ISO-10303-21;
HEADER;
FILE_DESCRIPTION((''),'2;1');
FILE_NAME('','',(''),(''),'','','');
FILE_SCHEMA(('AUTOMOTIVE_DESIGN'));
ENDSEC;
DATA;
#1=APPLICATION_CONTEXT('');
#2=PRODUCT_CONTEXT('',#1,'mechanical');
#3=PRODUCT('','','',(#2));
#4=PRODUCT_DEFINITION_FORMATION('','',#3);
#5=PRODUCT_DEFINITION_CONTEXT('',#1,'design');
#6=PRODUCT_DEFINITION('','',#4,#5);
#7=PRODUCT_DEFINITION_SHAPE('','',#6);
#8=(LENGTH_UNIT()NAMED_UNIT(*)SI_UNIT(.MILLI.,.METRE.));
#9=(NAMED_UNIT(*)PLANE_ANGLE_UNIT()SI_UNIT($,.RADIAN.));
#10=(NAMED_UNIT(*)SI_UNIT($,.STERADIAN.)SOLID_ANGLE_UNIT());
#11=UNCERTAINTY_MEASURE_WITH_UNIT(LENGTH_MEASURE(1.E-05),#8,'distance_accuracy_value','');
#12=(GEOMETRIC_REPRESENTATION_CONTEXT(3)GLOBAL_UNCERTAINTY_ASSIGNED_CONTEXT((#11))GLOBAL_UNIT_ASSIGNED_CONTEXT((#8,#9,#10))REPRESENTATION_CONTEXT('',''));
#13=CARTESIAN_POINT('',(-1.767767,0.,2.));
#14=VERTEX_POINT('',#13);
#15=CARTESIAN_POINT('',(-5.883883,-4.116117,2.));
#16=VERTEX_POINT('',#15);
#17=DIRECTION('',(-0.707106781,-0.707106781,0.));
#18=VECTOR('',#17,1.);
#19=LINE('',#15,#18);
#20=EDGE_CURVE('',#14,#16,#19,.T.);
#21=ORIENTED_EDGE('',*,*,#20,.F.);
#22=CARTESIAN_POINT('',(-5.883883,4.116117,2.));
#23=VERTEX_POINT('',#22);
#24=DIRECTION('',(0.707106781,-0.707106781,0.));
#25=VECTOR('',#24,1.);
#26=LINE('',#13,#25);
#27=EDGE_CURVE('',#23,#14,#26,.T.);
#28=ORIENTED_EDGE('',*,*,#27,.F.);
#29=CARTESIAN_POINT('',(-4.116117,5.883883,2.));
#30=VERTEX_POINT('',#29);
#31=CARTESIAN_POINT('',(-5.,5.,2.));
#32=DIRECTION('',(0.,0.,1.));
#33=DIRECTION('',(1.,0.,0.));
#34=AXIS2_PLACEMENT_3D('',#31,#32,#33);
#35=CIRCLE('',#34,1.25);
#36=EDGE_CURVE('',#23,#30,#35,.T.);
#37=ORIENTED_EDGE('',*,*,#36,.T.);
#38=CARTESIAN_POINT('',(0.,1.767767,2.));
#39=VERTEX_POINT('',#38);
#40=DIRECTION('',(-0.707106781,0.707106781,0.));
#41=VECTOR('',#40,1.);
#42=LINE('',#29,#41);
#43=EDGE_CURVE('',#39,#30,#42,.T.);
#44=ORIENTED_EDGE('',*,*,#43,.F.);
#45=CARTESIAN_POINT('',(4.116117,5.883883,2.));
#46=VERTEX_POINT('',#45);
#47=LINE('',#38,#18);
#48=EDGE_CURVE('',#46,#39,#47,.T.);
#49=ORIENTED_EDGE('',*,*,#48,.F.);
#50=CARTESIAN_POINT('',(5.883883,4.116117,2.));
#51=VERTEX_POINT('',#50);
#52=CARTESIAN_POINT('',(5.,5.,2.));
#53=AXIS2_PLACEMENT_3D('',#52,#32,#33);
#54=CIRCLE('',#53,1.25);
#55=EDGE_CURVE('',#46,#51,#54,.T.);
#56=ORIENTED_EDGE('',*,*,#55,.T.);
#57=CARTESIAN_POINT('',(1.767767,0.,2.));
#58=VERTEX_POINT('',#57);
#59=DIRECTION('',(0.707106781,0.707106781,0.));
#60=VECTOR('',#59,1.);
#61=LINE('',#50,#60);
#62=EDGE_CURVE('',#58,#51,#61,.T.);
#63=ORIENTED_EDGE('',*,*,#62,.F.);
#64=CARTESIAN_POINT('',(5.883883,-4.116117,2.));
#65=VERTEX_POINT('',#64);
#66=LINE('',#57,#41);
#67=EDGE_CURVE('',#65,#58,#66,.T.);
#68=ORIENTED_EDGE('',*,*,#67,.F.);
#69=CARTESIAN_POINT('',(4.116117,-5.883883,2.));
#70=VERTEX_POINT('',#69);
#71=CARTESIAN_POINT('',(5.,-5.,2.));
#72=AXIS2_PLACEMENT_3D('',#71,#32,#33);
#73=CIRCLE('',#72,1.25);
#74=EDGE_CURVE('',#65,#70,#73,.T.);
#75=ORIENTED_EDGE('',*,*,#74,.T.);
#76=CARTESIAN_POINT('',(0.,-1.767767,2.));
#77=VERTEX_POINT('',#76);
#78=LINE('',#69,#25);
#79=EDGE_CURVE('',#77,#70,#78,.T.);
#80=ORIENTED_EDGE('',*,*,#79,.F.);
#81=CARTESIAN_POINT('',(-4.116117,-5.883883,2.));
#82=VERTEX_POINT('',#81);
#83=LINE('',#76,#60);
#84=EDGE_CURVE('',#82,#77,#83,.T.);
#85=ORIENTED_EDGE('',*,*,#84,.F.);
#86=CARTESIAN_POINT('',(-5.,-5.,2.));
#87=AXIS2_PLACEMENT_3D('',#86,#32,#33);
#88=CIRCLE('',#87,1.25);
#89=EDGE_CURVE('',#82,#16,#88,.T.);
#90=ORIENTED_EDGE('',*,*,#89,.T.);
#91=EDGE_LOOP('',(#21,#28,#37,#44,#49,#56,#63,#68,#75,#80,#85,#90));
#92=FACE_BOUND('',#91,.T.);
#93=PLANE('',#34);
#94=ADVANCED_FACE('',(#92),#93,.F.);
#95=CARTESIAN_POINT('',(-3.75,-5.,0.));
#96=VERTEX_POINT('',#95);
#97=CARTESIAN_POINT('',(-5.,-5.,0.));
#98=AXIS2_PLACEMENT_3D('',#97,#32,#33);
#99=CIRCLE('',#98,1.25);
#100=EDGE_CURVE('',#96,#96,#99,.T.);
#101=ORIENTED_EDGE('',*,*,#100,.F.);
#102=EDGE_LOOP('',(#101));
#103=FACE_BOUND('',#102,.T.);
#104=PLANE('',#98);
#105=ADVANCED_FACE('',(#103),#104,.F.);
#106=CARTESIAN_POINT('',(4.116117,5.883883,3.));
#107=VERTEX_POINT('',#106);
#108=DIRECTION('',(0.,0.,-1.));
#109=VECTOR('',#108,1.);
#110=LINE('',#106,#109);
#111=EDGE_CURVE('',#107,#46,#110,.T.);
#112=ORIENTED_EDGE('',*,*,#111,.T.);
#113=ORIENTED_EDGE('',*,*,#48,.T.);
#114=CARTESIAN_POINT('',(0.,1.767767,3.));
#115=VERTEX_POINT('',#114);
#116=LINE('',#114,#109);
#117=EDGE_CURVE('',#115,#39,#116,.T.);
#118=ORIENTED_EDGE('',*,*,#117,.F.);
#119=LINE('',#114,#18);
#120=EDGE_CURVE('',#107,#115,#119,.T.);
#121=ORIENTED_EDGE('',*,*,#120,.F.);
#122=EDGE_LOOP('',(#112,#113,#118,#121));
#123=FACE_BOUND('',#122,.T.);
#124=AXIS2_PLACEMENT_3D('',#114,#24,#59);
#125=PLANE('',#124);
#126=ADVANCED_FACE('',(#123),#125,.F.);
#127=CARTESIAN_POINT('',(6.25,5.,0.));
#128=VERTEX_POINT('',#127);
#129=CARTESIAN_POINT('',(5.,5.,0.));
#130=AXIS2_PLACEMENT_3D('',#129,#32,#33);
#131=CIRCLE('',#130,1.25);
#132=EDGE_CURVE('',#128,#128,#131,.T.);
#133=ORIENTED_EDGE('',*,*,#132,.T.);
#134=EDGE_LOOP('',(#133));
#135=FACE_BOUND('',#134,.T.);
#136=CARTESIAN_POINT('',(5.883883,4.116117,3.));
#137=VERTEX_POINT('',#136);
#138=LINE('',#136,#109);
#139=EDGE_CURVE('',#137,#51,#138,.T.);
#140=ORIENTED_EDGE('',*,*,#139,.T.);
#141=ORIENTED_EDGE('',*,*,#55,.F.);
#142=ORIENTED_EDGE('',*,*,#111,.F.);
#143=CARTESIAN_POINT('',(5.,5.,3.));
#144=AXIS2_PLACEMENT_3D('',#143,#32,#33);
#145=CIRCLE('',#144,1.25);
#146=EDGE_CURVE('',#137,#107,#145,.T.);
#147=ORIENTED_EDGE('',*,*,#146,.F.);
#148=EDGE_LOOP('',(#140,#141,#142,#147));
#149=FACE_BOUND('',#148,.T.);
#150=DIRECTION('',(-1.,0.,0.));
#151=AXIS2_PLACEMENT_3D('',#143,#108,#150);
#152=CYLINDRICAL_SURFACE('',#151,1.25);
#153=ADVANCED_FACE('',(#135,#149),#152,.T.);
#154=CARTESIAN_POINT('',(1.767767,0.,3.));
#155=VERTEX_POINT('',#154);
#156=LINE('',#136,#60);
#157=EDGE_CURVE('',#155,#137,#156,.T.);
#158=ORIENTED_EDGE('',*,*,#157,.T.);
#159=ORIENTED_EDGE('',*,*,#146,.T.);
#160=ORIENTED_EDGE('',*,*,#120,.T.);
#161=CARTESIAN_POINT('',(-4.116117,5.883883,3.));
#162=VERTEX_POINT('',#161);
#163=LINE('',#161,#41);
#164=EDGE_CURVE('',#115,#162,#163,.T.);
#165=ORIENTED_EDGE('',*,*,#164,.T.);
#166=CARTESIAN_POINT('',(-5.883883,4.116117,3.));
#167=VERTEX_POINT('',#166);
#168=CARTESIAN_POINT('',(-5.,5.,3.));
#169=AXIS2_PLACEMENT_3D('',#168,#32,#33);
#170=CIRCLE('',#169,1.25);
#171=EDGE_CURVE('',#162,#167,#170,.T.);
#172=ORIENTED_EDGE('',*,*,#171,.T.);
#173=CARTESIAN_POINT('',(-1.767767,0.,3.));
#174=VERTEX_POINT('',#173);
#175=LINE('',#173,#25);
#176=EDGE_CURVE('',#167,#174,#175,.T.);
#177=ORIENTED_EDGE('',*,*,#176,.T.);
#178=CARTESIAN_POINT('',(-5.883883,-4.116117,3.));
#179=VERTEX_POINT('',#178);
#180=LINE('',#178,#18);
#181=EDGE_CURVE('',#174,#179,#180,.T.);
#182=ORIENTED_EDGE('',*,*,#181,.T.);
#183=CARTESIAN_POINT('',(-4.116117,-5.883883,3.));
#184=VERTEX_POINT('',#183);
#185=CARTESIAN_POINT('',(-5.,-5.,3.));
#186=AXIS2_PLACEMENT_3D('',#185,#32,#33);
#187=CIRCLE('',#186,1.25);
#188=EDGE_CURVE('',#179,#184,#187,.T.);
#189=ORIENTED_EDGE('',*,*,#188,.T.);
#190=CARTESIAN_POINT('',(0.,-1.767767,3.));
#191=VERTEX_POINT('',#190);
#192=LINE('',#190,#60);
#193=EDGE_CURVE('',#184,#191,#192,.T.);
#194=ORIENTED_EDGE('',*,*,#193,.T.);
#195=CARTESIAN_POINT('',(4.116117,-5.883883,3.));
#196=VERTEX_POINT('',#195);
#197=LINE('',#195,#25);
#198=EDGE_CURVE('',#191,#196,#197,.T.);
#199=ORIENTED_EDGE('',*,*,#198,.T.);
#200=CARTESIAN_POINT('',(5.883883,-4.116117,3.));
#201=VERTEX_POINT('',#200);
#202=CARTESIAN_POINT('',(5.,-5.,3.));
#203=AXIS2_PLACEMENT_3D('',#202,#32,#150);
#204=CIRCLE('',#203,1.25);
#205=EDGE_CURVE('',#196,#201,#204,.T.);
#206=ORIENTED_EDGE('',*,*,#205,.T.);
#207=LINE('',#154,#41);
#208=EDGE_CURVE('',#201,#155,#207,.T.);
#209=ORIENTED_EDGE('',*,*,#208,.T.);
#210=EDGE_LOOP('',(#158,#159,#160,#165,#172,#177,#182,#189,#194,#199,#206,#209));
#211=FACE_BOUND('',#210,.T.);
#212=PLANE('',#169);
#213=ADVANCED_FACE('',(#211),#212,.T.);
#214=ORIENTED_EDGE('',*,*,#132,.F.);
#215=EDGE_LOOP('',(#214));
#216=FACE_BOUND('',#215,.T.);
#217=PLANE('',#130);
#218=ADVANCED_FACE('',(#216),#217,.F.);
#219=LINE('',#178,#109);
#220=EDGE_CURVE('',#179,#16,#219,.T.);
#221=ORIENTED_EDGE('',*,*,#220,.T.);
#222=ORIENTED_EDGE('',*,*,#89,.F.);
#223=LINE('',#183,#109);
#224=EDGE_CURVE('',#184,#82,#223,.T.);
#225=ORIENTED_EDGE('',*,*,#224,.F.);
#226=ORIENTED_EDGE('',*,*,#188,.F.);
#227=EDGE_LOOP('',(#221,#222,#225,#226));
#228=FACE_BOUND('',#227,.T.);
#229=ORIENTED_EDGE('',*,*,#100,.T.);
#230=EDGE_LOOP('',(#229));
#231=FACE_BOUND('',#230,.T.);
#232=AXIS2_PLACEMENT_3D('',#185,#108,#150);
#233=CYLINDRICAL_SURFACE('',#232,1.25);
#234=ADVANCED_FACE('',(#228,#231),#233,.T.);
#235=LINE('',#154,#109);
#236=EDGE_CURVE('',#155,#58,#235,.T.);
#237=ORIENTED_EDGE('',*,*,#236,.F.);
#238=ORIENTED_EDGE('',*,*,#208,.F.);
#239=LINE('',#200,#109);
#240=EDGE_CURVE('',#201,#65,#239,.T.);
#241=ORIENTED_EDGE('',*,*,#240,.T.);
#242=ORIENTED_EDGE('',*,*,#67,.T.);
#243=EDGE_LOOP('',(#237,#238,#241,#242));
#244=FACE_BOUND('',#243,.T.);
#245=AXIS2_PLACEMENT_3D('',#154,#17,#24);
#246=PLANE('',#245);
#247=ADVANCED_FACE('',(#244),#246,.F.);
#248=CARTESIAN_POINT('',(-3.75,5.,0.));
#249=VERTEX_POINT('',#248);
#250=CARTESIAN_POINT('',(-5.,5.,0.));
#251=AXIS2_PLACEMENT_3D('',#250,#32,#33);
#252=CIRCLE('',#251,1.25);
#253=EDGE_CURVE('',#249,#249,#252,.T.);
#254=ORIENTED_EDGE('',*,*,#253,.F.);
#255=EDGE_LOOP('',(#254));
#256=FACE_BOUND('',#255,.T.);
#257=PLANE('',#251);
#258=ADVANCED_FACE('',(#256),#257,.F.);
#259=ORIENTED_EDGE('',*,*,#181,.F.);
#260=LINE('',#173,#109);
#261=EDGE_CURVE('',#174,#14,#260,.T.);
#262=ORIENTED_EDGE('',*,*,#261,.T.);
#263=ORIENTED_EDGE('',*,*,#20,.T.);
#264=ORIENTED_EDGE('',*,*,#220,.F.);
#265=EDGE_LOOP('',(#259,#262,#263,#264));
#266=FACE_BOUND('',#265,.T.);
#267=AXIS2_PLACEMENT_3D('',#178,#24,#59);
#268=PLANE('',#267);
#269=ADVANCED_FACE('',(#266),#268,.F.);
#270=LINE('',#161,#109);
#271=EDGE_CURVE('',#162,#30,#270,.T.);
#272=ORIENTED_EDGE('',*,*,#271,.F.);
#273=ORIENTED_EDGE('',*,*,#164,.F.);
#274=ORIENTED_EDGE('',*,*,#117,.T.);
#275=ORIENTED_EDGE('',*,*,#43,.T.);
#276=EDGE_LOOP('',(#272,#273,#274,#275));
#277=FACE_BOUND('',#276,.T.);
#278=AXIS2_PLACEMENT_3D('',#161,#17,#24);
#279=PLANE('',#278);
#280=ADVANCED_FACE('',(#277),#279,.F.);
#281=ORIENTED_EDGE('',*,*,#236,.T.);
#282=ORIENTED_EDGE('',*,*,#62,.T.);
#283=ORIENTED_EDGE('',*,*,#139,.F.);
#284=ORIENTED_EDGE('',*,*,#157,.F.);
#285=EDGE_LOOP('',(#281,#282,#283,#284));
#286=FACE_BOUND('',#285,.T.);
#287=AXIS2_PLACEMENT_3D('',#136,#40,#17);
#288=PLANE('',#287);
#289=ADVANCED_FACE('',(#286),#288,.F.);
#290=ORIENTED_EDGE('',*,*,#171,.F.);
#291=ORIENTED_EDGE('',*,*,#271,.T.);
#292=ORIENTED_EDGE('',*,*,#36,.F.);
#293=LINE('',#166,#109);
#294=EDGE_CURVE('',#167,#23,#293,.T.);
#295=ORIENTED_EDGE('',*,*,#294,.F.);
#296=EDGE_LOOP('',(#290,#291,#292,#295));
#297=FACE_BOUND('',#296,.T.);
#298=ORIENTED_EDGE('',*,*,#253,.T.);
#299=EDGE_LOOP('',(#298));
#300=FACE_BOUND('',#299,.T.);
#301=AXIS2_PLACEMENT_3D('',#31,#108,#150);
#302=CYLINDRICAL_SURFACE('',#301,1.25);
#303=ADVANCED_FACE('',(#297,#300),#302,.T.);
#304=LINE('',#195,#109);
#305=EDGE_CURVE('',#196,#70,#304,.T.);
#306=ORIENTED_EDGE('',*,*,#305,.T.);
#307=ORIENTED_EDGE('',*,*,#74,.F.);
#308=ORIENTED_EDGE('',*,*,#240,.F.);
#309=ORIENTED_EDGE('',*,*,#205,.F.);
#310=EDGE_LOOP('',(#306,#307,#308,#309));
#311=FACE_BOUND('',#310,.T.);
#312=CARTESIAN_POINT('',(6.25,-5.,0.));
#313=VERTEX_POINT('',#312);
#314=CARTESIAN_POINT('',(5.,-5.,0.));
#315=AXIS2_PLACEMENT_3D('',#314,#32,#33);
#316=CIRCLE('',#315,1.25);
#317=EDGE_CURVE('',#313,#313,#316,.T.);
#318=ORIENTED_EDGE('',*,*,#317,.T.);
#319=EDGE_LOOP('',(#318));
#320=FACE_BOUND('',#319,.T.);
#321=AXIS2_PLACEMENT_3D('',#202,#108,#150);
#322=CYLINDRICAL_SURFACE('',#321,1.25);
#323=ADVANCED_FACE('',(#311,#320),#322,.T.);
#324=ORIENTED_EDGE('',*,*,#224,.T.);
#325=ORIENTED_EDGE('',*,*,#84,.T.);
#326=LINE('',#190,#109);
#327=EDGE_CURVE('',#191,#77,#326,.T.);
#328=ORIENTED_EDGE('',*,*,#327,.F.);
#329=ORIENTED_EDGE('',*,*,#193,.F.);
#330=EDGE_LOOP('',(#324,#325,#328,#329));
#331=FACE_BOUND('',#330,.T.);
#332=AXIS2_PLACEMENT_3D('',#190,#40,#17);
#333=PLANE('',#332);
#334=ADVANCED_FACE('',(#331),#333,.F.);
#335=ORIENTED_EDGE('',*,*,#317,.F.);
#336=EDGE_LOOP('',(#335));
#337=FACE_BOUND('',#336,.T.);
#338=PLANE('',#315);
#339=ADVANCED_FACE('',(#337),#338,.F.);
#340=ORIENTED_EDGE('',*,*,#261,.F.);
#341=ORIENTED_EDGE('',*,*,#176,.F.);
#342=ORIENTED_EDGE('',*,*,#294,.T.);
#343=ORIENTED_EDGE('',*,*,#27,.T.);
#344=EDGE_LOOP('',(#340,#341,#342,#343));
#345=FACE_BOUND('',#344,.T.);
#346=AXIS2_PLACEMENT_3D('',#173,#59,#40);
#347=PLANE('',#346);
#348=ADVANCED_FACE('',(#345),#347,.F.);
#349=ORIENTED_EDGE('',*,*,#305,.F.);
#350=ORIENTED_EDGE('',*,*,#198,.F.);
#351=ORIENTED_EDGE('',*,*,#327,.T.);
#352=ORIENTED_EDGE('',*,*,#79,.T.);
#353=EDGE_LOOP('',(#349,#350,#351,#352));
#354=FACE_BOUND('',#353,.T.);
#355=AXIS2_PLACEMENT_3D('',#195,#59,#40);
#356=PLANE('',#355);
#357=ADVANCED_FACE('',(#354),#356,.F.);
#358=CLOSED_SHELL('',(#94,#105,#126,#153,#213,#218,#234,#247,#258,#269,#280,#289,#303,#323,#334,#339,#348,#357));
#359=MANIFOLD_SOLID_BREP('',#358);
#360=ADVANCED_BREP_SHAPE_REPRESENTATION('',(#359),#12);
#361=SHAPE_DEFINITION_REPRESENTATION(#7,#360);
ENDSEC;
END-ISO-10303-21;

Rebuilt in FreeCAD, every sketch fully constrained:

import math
import FreeCAD as App
import Part
import Sketcher

doc = App.newDocument("Part")
body = doc.addObject("PartDesign::Body", "Body")

# Sketch on XY plane
sketch1 = doc.addObject("Sketcher::SketchObject", "Sketch")
body.addObject(sketch1)
sketch1.AttachmentSupport = (doc.XY_Plane, [""])
sketch1.MapMode = "FlatFace"
sketch1.addGeometry(Part.Circle(App.Vector(-5, 5, 0), App.Vector(0, 0, 1), 1.2), False)
sketch1.addConstraint(Sketcher.Constraint("Diameter", 0, 2.5))
sketch1.addConstraint(Sketcher.Constraint("DistanceX", 0, 3, -1, 1, 5.0))
sketch1.addConstraint(Sketcher.Constraint("DistanceY", -1, 1, 0, 3, 5.0))
pad1 = doc.addObject("PartDesign::Pad", "Pad")
body.addObject(pad1)
pad1.Profile = sketch1
pad1.Length = 2
body2 = doc.addObject("PartDesign::Body", "Body001")

# Sketch on XY plane
sketch2 = doc.addObject("Sketcher::SketchObject", "Sketch001")
body2.addObject(sketch2)
sketch2.AttachmentSupport = (doc.getObject("XY_Plane001"), [""])
sketch2.MapMode = "FlatFace"
sketch2.addGeometry(Part.Circle(App.Vector(5, 5, 0), App.Vector(0, 0, 1), 1.2), False)
sketch2.addConstraint(Sketcher.Constraint("Diameter", 0, 2.5))
sketch2.addConstraint(Sketcher.Constraint("DistanceX", -1, 1, 0, 3, 5.0))
sketch2.addConstraint(Sketcher.Constraint("DistanceY", -1, 1, 0, 3, 5.0))
pad2 = doc.addObject("PartDesign::Pad", "Pad001")
body2.addObject(pad2)
pad2.Profile = sketch2
pad2.Length = 2
body3 = doc.addObject("PartDesign::Body", "Body002")

# Sketch on XY plane
sketch3 = doc.addObject("Sketcher::SketchObject", "Sketch002")
body3.addObject(sketch3)
sketch3.AttachmentSupport = (doc.getObject("XY_Plane002"), [""])
sketch3.MapMode = "FlatFace"
sketch3.addGeometry(Part.Circle(App.Vector(5, -5, 0), App.Vector(0, 0, 1), 1.2), False)
sketch3.addConstraint(Sketcher.Constraint("Diameter", 0, 2.5))
sketch3.addConstraint(Sketcher.Constraint("DistanceX", -1, 1, 0, 3, 5.0))
sketch3.addConstraint(Sketcher.Constraint("DistanceY", 0, 3, -1, 1, 5.0))
pad3 = doc.addObject("PartDesign::Pad", "Pad002")
body3.addObject(pad3)
pad3.Profile = sketch3
pad3.Length = 2
body4 = doc.addObject("PartDesign::Body", "Body003")

# Sketch on XY plane
sketch4 = doc.addObject("Sketcher::SketchObject", "Sketch003")
body4.addObject(sketch4)
sketch4.AttachmentSupport = (doc.getObject("XY_Plane003"), [""])
sketch4.MapMode = "FlatFace"
sketch4.addGeometry(Part.Circle(App.Vector(-5, -5, 0), App.Vector(0, 0, 1), 1.2), False)
sketch4.addConstraint(Sketcher.Constraint("Diameter", 0, 2.5))
sketch4.addConstraint(Sketcher.Constraint("DistanceX", 0, 3, -1, 1, 5.0))
sketch4.addConstraint(Sketcher.Constraint("DistanceY", 0, 3, -1, 1, 5.0))
pad4 = doc.addObject("PartDesign::Pad", "Pad003")
body4.addObject(pad4)
pad4.Profile = sketch4
pad4.Length = 2
body.AllowCompound = True
doc.recompute()

boolean = doc.addObject("PartDesign::Boolean", "Boolean")
body.addObject(boolean)
boolean.Type = "Fuse"
boolean.addObjects([body2])
doc.recompute()

boolean2 = doc.addObject("PartDesign::Boolean", "Boolean001")
body.addObject(boolean2)
boolean2.Type = "Fuse"
boolean2.addObjects([body3])
doc.recompute()

boolean3 = doc.addObject("PartDesign::Boolean", "Boolean002")
body.addObject(boolean3)
boolean3.Type = "Fuse"
boolean3.addObjects([body4])

# Sketch on XY plane
sketch5 = doc.addObject("Sketcher::SketchObject", "Sketch004")
body.addObject(sketch5)
sketch5.AttachmentSupport = (doc.XY_Plane, [""])
sketch5.MapMode = "FlatFace"
sketch5.AttachmentOffset = App.Placement(App.Vector(0, 0, 2), App.Rotation())
sketch5.addGeometry(Part.LineSegment(App.Vector(-1.8, 0, 0), App.Vector(-5.9, -4.1, 0)), False)
sketch5.addGeometry(Part.ArcOfCircle(Part.Circle(App.Vector(-5, -5, 0), App.Vector(0, 0, 1), 1.2), math.radians(135), math.radians(315)), False)
sketch5.addGeometry(Part.LineSegment(App.Vector(-4.1, -5.9, 0), App.Vector(0, -1.8, 0)), False)
sketch5.addGeometry(Part.LineSegment(App.Vector(0, -1.8, 0), App.Vector(4.1, -5.9, 0)), False)
sketch5.addGeometry(Part.ArcOfCircle(Part.Circle(App.Vector(5, -5, 0), App.Vector(0, 0, 1), 1.2), math.radians(-135), math.radians(45)), False)
sketch5.addGeometry(Part.LineSegment(App.Vector(5.9, -4.1, 0), App.Vector(1.8, 0, 0)), False)
sketch5.addGeometry(Part.LineSegment(App.Vector(1.8, 0, 0), App.Vector(5.9, 4.1, 0)), False)
sketch5.addGeometry(Part.ArcOfCircle(Part.Circle(App.Vector(5, 5, 0), App.Vector(0, 0, 1), 1.2), math.radians(-45), math.radians(135)), False)
sketch5.addGeometry(Part.LineSegment(App.Vector(4.1, 5.9, 0), App.Vector(0, 1.8, 0)), False)
sketch5.addGeometry(Part.LineSegment(App.Vector(0, 1.8, 0), App.Vector(-4.1, 5.9, 0)), False)
sketch5.addGeometry(Part.ArcOfCircle(Part.Circle(App.Vector(-5, 5, 0), App.Vector(0, 0, 1), 1.2), math.radians(45), math.radians(225)), False)
sketch5.addGeometry(Part.LineSegment(App.Vector(-5.9, 4.1, 0), App.Vector(-1.8, 0, 0)), False)
sketch5.addConstraint(Sketcher.Constraint("Tangent", 0, 2, 1, 1))
sketch5.addConstraint(Sketcher.Constraint("Tangent", 1, 2, 2, 1))
sketch5.addConstraint(Sketcher.Constraint("Coincident", 2, 2, 3, 1))
sketch5.addConstraint(Sketcher.Constraint("Tangent", 3, 2, 4, 1))
sketch5.addConstraint(Sketcher.Constraint("Tangent", 4, 2, 5, 1))
sketch5.addConstraint(Sketcher.Constraint("Coincident", 5, 2, 6, 1))
sketch5.addConstraint(Sketcher.Constraint("Tangent", 6, 2, 7, 1))
sketch5.addConstraint(Sketcher.Constraint("Tangent", 7, 2, 8, 1))
sketch5.addConstraint(Sketcher.Constraint("Coincident", 8, 2, 9, 1))
sketch5.addConstraint(Sketcher.Constraint("Tangent", 9, 2, 10, 1))
sketch5.addConstraint(Sketcher.Constraint("Tangent", 10, 2, 11, 1))
sketch5.addConstraint(Sketcher.Constraint("Coincident", 11, 2, 0, 1))
sketch5.addConstraint(Sketcher.Constraint("Equal", 1, 4))
sketch5.addConstraint(Sketcher.Constraint("Equal", 4, 7))
sketch5.addConstraint(Sketcher.Constraint("Equal", 7, 10))
sketch5.addConstraint(Sketcher.Constraint("Symmetric", 1, 3, 7, 3, -1, 1))
sketch5.addConstraint(Sketcher.Constraint("Symmetric", 4, 3, 10, 3, -1, 1))
sketch5.addConstraint(Sketcher.Constraint("Symmetric", 2, 2, 8, 2, -1, 1))
sketch5.addConstraint(Sketcher.Constraint("Symmetric", 5, 2, 11, 2, -1, 1))
sketch5.addConstraint(Sketcher.Constraint("Symmetric", 1, 3, 4, 3, -2))
sketch5.addConstraint(Sketcher.Constraint("PointOnObject", 2, 2, -2))
sketch5.addConstraint(Sketcher.Constraint("PointOnObject", 5, 2, -1))
sketch5.addConstraint(Sketcher.Constraint("Parallel", 0, 2))
sketch5.addConstraint(Sketcher.Constraint("Perpendicular", 2, 3))
sketch5.addConstraint(Sketcher.Constraint("Equal", 0, 2))
sketch5.addConstraint(Sketcher.Constraint("Radius", 1, 1.25))
sketch5.addConstraint(Sketcher.Constraint("DistanceX", 1, 3, -1, 1, 5.0))
pad5 = doc.addObject("PartDesign::Pad", "Pad004")
body.addObject(pad5)
pad5.Profile = sketch5
pad5.Length = 1

doc.recompute()
